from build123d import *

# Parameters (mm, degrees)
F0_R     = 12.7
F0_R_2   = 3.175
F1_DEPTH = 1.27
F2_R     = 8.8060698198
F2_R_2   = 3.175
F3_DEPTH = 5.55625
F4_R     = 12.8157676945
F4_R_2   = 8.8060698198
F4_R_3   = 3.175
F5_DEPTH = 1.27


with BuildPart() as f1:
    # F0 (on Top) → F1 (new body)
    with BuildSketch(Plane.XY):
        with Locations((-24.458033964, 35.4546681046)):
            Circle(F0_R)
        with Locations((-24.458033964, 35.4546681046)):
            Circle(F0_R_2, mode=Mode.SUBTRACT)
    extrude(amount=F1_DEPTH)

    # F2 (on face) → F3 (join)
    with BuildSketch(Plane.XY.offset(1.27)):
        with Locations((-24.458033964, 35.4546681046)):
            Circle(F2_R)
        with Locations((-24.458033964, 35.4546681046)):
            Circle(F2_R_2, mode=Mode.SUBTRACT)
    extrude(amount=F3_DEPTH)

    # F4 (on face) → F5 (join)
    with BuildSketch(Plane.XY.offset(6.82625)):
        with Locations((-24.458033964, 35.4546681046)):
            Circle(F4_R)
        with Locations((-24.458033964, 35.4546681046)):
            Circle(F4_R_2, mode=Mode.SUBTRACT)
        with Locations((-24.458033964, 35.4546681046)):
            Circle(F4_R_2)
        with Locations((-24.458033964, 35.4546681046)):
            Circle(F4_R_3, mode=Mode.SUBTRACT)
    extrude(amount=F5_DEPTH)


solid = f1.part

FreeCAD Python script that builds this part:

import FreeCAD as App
import Part
import Sketcher
from FreeCAD import Vector
Q = App.Units.Quantity

doc = App.newDocument("Part")
body = doc.addObject("PartDesign::Body", "Body")

sketch1 = body.newObject("Sketcher::SketchObject", "Sketch")
sketch1.AttachmentSupport = (doc.getObject("XY_Plane"), [""])
sketch1.MapMode = "FlatFace"
sketch1.addGeometry([
    Part.Circle(Vector(-24.5, 35.5, 0), Vector(0, 0, 1), 12.7),
    Part.Circle(Vector(-24.5, 35.5, 0), Vector(0, 0, 1), 3.2),
], False)
sketch1.addConstraint([
    Sketcher.Constraint("Coincident", 1, 3, 0, 3),
    Sketcher.Constraint("Diameter", 0, Q("1 in")),
    Sketcher.Constraint("Diameter", 1, Q("0.25 in")),
    Sketcher.Constraint("DistanceY", -1, 1, 0, 3, 35.454668),
    Sketcher.Constraint("DistanceX", 0, 3, -1, 1, 24.458034),
])
pad1 = body.newObject("PartDesign::Pad", "Pad")
pad1.Profile = sketch1
pad1.Length = Q("0.05 in")

sketch2 = body.newObject("Sketcher::SketchObject", "Sketch001")
sketch2.AttachmentSupport = (doc.getObject("XY_Plane"), [""])
sketch2.MapMode = "FlatFace"
sketch2.AttachmentOffset = App.Placement(Vector(0, 0, 0.05 * 25.4), App.Rotation())
sketch2.addGeometry([
    Part.Circle(Vector(-24.5, 35.5, 0), Vector(0, 0, 1), 8.8),
    Part.Circle(Vector(-24.5, 35.5, 0), Vector(0, 0, 1), 3.2),
], False)
sketch2.addConstraint([
    Sketcher.Constraint("Coincident", 1, 3, 0, 3),
    Sketcher.Constraint("Diameter", 1, Q("0.25 in")),
    Sketcher.Constraint("Diameter", 0, 17.61214),
    Sketcher.Constraint("DistanceY", -1, 1, 0, 3, 35.454668),
    Sketcher.Constraint("DistanceX", 0, 3, -1, 1, 24.458034),
])
pad2 = body.newObject("PartDesign::Pad", "Pad001")
pad2.Profile = sketch2
pad2.Length = Q("0.21875 in")

sketch3 = body.newObject("Sketcher::SketchObject", "Sketch002")
sketch3.AttachmentSupport = (doc.getObject("XY_Plane"), [""])
sketch3.MapMode = "FlatFace"
sketch3.AttachmentOffset = App.Placement(Vector(0, 0, 6.82625), App.Rotation())
sketch3.addGeometry([
    Part.Circle(Vector(-24.5, 35.5, 0), Vector(0, 0, 1), 12.8),
    Part.Circle(Vector(-24.5, 35.5, 0), Vector(0, 0, 1), 3.2),
], False)
sketch3.addConstraint([
    Sketcher.Constraint("Coincident", 1, 3, 0, 3),
    Sketcher.Constraint("Diameter", 1, Q("0.25 in")),
    Sketcher.Constraint("Diameter", 0, 25.631535),
    Sketcher.Constraint("DistanceY", -1, 1, 0, 3, 35.454668),
    Sketcher.Constraint("DistanceX", 0, 3, -1, 1, 24.458034),
])
pad3 = body.newObject("PartDesign::Pad", "Pad002")
pad3.Profile = sketch3
pad3.Length = Q("0.05 in")

doc.recompute()
